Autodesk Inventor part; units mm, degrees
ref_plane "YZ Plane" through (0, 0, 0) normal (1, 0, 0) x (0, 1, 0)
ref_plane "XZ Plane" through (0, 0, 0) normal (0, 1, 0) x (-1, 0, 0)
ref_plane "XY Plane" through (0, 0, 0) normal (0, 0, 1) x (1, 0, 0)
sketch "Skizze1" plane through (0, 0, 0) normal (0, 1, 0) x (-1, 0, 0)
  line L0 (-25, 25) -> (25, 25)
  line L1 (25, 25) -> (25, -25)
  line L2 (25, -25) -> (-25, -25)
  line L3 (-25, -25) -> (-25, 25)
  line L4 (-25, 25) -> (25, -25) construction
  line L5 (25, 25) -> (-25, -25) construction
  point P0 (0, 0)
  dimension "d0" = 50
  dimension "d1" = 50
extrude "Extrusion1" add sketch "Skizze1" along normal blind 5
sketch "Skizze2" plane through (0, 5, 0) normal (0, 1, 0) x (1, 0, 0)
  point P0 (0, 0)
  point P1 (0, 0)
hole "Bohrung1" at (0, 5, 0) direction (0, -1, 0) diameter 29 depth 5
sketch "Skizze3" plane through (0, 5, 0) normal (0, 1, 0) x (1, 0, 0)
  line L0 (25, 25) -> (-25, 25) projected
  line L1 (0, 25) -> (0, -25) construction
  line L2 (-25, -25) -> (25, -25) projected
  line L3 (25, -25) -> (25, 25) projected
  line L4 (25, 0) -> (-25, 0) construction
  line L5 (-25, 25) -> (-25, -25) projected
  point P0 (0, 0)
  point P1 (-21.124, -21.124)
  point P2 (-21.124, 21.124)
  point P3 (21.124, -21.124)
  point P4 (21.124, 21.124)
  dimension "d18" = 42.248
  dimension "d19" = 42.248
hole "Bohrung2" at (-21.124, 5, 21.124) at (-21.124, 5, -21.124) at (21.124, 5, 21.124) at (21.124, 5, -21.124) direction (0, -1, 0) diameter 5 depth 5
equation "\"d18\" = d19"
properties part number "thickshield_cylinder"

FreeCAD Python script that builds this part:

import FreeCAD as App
import Part
import Sketcher
Q = App.Units.Quantity

doc = App.newDocument("Part")
body = doc.addObject("PartDesign::Body", "Body")

# Sketch on XZ plane
sketch1 = body.newObject("Sketcher::SketchObject", "Sketch")
sketch1.AttachmentSupport = (doc.getObject("XZ_Plane"), [""])
sketch1.MapMode = "FlatFace"
sketch1.addGeometry([
    Part.LineSegment(App.Vector(-25, 25, 0), App.Vector(25, 25, 0)),
    Part.LineSegment(App.Vector(25, 25, 0), App.Vector(25, -25, 0)),
    Part.LineSegment(App.Vector(25, -25, 0), App.Vector(-25, -25, 0)),
    Part.LineSegment(App.Vector(-25, -25, 0), App.Vector(-25, 25, 0)),
], False)
sketch1.addConstraint([
    Sketcher.Constraint("Coincident", 0, 2, 1, 1),
    Sketcher.Constraint("Coincident", 1, 2, 2, 1),
    Sketcher.Constraint("Coincident", 2, 2, 3, 1),
    Sketcher.Constraint("Coincident", 3, 2, 0, 1),
    Sketcher.Constraint("Horizontal", 0),
    Sketcher.Constraint("Vertical", 1),
    Sketcher.Constraint("Horizontal", 2),
    Sketcher.Constraint("Vertical", 3),
    Sketcher.Constraint("Symmetric", 0, 2, 2, 2, -1, 1),
    Sketcher.Constraint("Equal", 2, 1),
    Sketcher.Constraint("DistanceX", 0, 1, 0, 2, Q("50 mm")),
])
pad1 = body.newObject("PartDesign::Pad", "Pad")
pad1.Profile = sketch1
pad1.Length = 5
pad1.Reversed = True

# Sketch on XZ plane
sketch2 = body.newObject("Sketcher::SketchObject", "Sketch001")
sketch2.AttachmentSupport = (doc.getObject("XZ_Plane"), [""])
sketch2.MapMode = "FlatFace"
sketch2.AttachmentOffset = App.Placement(App.Vector(0, 0, -5), App.Rotation())
sketch2.addGeometry(Part.Circle(App.Vector(0, 0, 0), App.Vector(0, 0, 1), 14.5), False)
sketch2.addConstraint([
    Sketcher.Constraint("Coincident", 0, 3, -1, 1),
    Sketcher.Constraint("Diameter", 0, Q("29 mm")),
])
doc.recompute()
hole = body.newObject("PartDesign::Hole", "Hole")
hole.Profile = sketch2
hole.ThreadType = "None"
hole.Diameter = 29
hole.DepthType = "Dimension"
hole.Depth = 5
hole.DrillPoint = "Flat"
hole.Reversed = True

# Sketch on XZ plane
sketch3 = body.newObject("Sketcher::SketchObject", "Sketch002")
sketch3.AttachmentSupport = (doc.getObject("XZ_Plane"), [""])
sketch3.MapMode = "FlatFace"
sketch3.AttachmentOffset = App.Placement(App.Vector(0, 0, -5), App.Rotation())
sketch3.addGeometry([
    Part.Circle(App.Vector(-21.124, 21.124, 0), App.Vector(0, 0, 1), 2.5),
    Part.Circle(App.Vector(-21.124, -21.124, 0), App.Vector(0, 0, 1), 2.5),
    Part.Circle(App.Vector(21.124, 21.124, 0), App.Vector(0, 0, 1), 2.5),
    Part.Circle(App.Vector(21.124, -21.124, 0), App.Vector(0, 0, 1), 2.5),
], False)
sketch3.addConstraint([
    Sketcher.Constraint("Equal", 0, 1),
    Sketcher.Constraint("Equal", 1, 2),
    Sketcher.Constraint("Equal", 2, 3),
    Sketcher.Constraint("Symmetric", 1, 3, 2, 3, -1, 1),
    Sketcher.Constraint("Symmetric", 0, 3, 3, 3, -1, 1),
    Sketcher.Constraint("Symmetric", 0, 3, 2, 3, -2),
    Sketcher.Constraint("Diameter", 0, Q("5 mm")),
    Sketcher.Constraint("DistanceX", 0, 3, -1, 1, Q("21.124 mm")),
    Sketcher.Constraint("DistanceY", -1, 1, 0, 3, Q("21.124 mm")),
])
doc.recompute()
hole2 = body.newObject("PartDesign::Hole", "Hole001")
hole2.Profile = sketch3
hole2.ThreadType = "None"
hole2.Diameter = 5
hole2.DepthType = "Dimension"
hole2.Depth = 5
hole2.DrillPoint = "Flat"
hole2.Reversed = True

doc.recompute()
